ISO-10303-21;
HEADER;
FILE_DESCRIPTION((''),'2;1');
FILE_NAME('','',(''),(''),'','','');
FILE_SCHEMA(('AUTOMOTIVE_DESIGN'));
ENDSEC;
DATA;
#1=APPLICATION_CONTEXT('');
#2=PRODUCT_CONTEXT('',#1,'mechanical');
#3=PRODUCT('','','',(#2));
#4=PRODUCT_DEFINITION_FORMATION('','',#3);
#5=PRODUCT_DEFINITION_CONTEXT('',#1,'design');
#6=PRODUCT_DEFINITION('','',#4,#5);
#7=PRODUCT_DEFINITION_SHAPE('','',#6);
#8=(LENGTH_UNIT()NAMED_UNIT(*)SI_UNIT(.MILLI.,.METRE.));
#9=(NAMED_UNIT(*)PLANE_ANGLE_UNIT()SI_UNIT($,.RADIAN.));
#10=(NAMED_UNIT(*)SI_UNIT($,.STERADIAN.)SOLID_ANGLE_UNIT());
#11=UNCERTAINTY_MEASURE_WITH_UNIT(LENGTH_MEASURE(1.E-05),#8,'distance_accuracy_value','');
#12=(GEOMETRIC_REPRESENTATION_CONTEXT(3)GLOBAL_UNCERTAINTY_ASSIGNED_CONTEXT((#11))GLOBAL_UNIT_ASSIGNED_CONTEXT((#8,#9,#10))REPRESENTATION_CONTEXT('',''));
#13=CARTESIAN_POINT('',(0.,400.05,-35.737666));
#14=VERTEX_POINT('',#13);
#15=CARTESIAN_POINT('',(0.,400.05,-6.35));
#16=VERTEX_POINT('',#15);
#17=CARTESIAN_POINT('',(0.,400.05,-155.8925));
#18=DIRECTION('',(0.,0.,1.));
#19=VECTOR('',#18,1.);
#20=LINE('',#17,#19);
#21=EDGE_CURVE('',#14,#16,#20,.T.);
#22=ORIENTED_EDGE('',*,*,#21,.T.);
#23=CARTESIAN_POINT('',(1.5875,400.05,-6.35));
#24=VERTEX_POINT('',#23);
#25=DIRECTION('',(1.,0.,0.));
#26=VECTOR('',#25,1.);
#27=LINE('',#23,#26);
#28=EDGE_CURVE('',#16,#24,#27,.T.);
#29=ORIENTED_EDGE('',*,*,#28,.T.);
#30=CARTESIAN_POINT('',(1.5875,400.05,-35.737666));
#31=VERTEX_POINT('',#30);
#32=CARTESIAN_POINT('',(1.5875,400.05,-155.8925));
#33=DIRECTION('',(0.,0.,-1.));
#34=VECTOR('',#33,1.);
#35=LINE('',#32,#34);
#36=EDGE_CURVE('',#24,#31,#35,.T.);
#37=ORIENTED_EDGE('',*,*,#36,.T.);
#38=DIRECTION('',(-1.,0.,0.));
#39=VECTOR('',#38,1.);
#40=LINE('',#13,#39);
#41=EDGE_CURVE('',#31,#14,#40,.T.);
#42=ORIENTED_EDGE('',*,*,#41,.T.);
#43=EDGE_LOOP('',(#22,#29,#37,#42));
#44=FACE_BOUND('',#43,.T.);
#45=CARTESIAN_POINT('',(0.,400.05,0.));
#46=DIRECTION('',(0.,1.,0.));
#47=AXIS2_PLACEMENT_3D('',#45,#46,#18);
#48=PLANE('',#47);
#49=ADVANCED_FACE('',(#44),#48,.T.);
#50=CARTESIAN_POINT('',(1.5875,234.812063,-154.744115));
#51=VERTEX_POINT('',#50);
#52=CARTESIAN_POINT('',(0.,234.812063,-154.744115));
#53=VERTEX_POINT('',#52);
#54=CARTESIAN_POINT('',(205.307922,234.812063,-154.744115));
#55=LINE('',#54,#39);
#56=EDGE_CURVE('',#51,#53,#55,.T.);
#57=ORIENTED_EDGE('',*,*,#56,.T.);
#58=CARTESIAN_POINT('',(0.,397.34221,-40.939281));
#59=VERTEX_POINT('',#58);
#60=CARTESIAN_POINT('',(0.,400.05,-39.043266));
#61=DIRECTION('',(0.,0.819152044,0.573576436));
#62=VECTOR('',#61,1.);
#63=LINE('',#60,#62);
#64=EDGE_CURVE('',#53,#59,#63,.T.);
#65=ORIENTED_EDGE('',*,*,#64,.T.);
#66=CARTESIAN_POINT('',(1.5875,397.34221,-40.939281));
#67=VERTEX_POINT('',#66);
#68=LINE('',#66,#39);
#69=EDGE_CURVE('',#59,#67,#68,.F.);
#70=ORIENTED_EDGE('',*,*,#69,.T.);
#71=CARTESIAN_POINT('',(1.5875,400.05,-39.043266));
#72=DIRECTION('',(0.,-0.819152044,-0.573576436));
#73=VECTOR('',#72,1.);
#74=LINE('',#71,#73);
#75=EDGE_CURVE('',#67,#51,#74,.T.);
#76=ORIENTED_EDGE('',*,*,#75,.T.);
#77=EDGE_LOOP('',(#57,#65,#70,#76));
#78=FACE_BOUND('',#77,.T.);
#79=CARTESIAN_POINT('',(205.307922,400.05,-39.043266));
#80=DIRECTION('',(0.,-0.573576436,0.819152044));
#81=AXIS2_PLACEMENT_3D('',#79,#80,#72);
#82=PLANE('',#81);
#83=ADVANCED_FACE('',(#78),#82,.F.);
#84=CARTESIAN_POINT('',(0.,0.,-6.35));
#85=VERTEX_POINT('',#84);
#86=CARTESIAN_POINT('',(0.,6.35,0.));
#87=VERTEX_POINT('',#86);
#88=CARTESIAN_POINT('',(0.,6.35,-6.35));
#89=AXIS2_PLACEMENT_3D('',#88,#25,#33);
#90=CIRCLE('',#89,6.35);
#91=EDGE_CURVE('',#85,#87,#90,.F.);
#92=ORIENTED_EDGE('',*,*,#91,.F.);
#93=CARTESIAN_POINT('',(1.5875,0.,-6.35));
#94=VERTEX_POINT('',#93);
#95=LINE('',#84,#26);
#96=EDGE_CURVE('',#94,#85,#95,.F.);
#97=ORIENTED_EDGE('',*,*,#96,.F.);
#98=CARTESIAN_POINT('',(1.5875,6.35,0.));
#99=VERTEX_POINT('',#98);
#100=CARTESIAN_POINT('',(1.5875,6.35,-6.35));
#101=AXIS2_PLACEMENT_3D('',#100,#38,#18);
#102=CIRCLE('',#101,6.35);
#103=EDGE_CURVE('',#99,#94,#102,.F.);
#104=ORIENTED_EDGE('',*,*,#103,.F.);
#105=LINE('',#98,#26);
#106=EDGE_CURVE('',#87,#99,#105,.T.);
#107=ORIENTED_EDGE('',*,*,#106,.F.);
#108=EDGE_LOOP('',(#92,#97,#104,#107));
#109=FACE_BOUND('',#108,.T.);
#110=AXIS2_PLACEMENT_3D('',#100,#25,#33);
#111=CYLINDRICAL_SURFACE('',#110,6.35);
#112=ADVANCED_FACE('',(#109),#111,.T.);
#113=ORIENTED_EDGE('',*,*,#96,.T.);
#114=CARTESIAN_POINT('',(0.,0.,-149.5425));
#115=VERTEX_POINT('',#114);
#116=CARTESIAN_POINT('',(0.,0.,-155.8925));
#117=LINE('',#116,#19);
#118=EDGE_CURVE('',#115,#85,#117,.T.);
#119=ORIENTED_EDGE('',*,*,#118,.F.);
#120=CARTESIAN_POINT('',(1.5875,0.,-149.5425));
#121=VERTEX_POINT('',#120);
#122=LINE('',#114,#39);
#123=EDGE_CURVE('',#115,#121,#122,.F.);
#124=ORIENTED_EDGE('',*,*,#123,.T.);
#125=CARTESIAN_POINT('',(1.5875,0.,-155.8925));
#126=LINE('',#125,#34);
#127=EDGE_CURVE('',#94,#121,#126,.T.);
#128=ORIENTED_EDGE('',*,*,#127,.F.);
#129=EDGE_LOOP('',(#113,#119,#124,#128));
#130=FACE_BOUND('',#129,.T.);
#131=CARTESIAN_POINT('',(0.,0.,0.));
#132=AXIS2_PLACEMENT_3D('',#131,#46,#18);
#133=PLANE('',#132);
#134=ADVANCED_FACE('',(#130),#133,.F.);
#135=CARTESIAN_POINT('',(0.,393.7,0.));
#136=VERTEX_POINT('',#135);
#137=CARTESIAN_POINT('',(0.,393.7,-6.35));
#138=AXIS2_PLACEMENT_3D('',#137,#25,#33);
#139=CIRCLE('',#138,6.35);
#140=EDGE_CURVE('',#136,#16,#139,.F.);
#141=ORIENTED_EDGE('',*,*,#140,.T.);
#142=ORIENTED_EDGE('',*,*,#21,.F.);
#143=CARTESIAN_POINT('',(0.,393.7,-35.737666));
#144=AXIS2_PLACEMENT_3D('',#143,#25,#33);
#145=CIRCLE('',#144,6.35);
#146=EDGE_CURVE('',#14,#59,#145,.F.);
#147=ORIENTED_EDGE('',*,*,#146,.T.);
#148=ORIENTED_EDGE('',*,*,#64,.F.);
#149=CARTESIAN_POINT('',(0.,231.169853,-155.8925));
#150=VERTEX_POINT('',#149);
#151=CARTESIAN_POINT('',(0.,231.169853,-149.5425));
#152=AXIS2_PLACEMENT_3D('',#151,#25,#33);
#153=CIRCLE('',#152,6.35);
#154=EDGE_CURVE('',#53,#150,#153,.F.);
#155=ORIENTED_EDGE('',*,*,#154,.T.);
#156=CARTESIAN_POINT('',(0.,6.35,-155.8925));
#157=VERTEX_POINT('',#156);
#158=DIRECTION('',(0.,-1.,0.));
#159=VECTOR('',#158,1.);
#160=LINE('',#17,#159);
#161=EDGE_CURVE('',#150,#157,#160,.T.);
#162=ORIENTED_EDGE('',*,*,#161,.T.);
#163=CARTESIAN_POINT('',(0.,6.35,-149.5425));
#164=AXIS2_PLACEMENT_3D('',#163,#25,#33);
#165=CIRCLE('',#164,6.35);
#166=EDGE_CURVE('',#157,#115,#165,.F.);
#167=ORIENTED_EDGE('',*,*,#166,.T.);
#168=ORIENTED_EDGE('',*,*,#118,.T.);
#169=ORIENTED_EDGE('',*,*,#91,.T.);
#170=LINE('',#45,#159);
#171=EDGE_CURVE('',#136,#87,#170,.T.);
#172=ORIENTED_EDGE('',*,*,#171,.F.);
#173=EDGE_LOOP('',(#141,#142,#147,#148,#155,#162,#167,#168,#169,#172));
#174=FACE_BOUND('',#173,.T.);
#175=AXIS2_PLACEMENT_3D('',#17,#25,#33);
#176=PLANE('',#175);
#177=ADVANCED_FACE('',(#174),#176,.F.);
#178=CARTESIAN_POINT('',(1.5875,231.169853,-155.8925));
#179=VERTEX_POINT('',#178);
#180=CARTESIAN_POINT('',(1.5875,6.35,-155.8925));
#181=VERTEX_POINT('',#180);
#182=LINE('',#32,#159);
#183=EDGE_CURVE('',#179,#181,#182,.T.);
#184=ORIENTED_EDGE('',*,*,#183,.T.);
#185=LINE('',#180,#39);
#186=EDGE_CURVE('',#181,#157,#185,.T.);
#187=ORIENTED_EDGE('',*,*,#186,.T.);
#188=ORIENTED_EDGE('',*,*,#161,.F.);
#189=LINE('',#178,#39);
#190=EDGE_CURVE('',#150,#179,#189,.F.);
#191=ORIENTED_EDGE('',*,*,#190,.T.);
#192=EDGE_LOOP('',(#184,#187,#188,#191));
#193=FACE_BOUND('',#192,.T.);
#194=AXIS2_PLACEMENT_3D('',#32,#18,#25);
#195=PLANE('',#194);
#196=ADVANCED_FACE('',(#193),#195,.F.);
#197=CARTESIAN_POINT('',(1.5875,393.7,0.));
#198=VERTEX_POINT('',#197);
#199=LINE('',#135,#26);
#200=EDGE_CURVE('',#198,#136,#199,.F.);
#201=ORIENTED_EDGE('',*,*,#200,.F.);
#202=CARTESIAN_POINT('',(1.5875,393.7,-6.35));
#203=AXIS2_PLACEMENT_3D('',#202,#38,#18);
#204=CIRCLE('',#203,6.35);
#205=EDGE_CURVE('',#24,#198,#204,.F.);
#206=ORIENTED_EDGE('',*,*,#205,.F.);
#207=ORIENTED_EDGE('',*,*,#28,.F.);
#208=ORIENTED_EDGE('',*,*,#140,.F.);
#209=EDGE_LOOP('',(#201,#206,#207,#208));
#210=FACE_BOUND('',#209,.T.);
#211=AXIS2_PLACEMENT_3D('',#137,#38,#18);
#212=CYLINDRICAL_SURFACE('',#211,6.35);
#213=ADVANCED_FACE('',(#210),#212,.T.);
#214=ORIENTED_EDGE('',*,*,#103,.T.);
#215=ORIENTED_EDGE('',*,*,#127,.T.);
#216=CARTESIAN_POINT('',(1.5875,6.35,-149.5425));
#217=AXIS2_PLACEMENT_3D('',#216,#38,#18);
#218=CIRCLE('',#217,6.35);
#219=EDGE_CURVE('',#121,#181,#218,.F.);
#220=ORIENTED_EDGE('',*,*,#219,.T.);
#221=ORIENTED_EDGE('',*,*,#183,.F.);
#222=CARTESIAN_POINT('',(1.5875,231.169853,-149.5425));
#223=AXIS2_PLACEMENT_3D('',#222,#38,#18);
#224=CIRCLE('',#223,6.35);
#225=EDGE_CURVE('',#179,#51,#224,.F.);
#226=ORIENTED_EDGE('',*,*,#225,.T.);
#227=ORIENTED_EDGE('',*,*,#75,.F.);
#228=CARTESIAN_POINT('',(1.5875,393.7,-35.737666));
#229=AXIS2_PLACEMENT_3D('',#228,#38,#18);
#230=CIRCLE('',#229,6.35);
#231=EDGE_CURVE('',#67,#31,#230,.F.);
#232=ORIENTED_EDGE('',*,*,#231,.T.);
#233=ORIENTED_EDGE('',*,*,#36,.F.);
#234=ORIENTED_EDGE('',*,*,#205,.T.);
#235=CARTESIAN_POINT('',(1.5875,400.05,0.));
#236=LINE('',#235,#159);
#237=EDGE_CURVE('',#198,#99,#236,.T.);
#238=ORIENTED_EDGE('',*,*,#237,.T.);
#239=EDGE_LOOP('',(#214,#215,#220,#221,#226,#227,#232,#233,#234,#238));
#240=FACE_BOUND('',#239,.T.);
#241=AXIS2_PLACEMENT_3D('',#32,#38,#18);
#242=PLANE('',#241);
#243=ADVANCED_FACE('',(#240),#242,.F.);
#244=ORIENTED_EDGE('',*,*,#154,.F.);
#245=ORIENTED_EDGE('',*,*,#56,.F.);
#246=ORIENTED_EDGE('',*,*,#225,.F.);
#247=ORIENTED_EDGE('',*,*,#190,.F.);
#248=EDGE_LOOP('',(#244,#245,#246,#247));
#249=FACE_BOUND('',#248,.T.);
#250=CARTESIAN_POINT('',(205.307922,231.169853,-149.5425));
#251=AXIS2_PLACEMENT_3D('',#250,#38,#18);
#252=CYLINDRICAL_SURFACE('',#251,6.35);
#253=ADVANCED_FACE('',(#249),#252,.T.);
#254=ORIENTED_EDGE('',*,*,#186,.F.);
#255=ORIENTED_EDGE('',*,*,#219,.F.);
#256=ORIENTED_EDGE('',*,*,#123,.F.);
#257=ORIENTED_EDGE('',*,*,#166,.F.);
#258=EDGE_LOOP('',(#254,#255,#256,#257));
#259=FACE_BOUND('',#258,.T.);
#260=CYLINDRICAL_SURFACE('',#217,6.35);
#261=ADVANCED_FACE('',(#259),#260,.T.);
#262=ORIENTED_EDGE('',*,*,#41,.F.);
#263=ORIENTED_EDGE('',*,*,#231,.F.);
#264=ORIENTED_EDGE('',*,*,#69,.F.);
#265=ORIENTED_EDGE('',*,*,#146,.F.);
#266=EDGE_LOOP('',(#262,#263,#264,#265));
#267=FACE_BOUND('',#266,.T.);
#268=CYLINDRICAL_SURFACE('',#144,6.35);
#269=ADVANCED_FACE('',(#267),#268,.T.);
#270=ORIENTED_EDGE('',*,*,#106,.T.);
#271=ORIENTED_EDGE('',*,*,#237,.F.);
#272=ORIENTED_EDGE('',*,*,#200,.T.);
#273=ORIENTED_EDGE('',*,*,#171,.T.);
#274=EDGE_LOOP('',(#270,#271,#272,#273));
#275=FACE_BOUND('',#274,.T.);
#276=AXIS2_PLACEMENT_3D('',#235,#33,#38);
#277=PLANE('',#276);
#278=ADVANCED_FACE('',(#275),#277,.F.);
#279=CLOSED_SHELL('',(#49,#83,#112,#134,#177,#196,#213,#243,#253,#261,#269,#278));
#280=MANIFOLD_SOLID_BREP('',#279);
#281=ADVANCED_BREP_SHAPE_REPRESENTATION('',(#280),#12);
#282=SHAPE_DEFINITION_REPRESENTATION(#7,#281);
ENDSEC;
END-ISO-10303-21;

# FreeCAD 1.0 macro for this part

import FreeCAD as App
import Part
import Sketcher

V = App.Vector
Q = App.Units.Quantity


def edges_at(feature, points):
    """Names of the edges that pass closest to the given points."""
    edges = feature.Shape.Edges
    near = lambda p: min(range(len(edges)), key=lambda i: edges[i].distToShape(Part.Vertex(*p))[0])
    return sorted({f"Edge{near(p) + 1}" for p in points})


def add_polygon(sketch, points):
    """Adds a closed chain of lines whose ends are joined by coincident constraints."""
    first, n = sketch.GeometryCount, len(points)
    for a, b in zip(points, points[1:] + points[:1]):
        sketch.addGeometry(Part.LineSegment(App.Vector(*a, 0), App.Vector(*b, 0)), False)
    for i in range(n):
        sketch.addConstraint(Sketcher.Constraint("Coincident", first + i, 2, first + (i + 1) % n, 1))

doc = App.newDocument("Part")
body = doc.addObject("PartDesign::Body", "Body")

# Sketch on XZ plane
sketch1 = body.newObject("Sketcher::SketchObject", "Sketch")
sketch1.AttachmentSupport = (doc.getObject("XZ_Plane"), [""])
sketch1.MapMode = "FlatFace"
add_polygon(sketch1, [(0, -155.9), (0, 0), (1.6, 0), (1.6, -155.9)])  # lines 0-3
sketch1.addConstraint([
    Sketcher.Constraint("Vertical", 0),
    Sketcher.Constraint("Horizontal", 1),
    Sketcher.Constraint("Vertical", 2),
    Sketcher.Constraint("Horizontal", 3),
    Sketcher.Constraint("Coincident", 0, 2, -1, 1),
    Sketcher.Constraint("DistanceX", 1, 1, 1, 2, Q("0.0625 in")),
    Sketcher.Constraint("DistanceY", 0, 1, 0, 2, Q("6.1375 in")),
])
pad1 = body.newObject("PartDesign::Pad", "Pad")
pad1.Profile = sketch1
pad1.Length = Q("15.75 in")
pad1.Reversed = True

# Sketch on YZ plane
sketch2 = body.newObject("Sketcher::SketchObject", "Sketch001")
sketch2.AttachmentSupport = (doc.getObject("YZ_Plane"), [""])
sketch2.MapMode = "FlatFace"
add_polygon(sketch2, [(233, -156), (400, -39), (400, -156)])  # lines 0-2
sketch2.addConstraint([
    Sketcher.Constraint("Vertical", 1),
    Sketcher.Constraint("Horizontal", 2),
    Sketcher.Constraint("Angle", 0, Q("35 deg")),
    Sketcher.Constraint("DistanceX", 2, 2, 2, 1, Q("6.57 in")),
    Sketcher.Constraint("DistanceX", -1, 1, 0, 2, Q("15.75 in")),
    Sketcher.Constraint("DistanceY", 1, 2, -1, 1, Q("6.1375 in")),
])
pocket1 = body.newObject("PartDesign::Pocket", "Pocket")
pocket1.Profile = sketch2
pocket1.Length = Q("0.0625 in")
pocket1.Reversed = True
doc.recompute()

fillet = body.newObject("PartDesign::Fillet", "Fillet")
fillet.Base = (pocket1, edges_at(pocket1, [
    (0.794, 400.05, -39.043),
    (0.794, 233.172, -155.893),
    (0.794, 400.05, 0),
    (0.794, 0, -155.893),
    (0.794, 0, 0),
]))
fillet.Radius = Q("0.25 in")

doc.recompute()
